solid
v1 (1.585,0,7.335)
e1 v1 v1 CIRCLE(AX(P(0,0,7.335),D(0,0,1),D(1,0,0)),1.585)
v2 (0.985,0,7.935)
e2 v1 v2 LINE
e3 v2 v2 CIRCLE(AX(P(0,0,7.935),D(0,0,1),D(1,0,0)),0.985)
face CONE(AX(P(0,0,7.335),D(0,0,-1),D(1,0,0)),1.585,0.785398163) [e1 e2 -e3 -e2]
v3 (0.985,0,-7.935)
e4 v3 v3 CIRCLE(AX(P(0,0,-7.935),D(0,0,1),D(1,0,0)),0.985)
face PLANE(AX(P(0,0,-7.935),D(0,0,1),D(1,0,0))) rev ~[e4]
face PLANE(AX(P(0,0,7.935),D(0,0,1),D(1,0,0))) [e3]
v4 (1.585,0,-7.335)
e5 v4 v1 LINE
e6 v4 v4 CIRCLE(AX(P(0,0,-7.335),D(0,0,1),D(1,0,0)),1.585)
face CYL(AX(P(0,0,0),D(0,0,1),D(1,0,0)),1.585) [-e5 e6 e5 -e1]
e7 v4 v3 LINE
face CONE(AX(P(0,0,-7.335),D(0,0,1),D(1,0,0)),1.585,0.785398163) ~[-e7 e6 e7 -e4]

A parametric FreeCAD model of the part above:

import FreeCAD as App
import Part
import Sketcher


def edges_at(feature, points):
    """Names of the edges that pass closest to the given points."""
    edges = feature.Shape.Edges
    near = lambda p: min(range(len(edges)), key=lambda i: edges[i].distToShape(Part.Vertex(*p))[0])
    return sorted({f"Edge{near(p) + 1}" for p in points})

doc = App.newDocument("Part")
body = doc.addObject("PartDesign::Body", "Body")

# Sketch on XY plane
sketch1 = doc.addObject("Sketcher::SketchObject", "Sketch")
body.addObject(sketch1)
sketch1.AttachmentSupport = (doc.XY_Plane, [""])
sketch1.MapMode = "FlatFace"
sketch1.addGeometry(Part.Circle(App.Vector(0, 0, 0), App.Vector(0, 0, 1), 1.6), False)
sketch1.addConstraint([
    Sketcher.Constraint("Coincident", 0, 3, -1, 1),
    Sketcher.Constraint("Diameter", 0, 3.17),
])
pad1 = doc.addObject("PartDesign::Pad", "Pad")
body.addObject(pad1)
pad1.Profile = sketch1
pad1.Length = 15.87
pad1.Midplane = True
doc.recompute()

chamfer = doc.addObject("PartDesign::Chamfer", "Chamfer")
body.addObject(chamfer)
chamfer.Base = (pad1, edges_at(pad1, [(-1.585, 0, -7.935), (-1.585, 0, 7.935)]))
chamfer.Size = 0.6

doc.recompute()
